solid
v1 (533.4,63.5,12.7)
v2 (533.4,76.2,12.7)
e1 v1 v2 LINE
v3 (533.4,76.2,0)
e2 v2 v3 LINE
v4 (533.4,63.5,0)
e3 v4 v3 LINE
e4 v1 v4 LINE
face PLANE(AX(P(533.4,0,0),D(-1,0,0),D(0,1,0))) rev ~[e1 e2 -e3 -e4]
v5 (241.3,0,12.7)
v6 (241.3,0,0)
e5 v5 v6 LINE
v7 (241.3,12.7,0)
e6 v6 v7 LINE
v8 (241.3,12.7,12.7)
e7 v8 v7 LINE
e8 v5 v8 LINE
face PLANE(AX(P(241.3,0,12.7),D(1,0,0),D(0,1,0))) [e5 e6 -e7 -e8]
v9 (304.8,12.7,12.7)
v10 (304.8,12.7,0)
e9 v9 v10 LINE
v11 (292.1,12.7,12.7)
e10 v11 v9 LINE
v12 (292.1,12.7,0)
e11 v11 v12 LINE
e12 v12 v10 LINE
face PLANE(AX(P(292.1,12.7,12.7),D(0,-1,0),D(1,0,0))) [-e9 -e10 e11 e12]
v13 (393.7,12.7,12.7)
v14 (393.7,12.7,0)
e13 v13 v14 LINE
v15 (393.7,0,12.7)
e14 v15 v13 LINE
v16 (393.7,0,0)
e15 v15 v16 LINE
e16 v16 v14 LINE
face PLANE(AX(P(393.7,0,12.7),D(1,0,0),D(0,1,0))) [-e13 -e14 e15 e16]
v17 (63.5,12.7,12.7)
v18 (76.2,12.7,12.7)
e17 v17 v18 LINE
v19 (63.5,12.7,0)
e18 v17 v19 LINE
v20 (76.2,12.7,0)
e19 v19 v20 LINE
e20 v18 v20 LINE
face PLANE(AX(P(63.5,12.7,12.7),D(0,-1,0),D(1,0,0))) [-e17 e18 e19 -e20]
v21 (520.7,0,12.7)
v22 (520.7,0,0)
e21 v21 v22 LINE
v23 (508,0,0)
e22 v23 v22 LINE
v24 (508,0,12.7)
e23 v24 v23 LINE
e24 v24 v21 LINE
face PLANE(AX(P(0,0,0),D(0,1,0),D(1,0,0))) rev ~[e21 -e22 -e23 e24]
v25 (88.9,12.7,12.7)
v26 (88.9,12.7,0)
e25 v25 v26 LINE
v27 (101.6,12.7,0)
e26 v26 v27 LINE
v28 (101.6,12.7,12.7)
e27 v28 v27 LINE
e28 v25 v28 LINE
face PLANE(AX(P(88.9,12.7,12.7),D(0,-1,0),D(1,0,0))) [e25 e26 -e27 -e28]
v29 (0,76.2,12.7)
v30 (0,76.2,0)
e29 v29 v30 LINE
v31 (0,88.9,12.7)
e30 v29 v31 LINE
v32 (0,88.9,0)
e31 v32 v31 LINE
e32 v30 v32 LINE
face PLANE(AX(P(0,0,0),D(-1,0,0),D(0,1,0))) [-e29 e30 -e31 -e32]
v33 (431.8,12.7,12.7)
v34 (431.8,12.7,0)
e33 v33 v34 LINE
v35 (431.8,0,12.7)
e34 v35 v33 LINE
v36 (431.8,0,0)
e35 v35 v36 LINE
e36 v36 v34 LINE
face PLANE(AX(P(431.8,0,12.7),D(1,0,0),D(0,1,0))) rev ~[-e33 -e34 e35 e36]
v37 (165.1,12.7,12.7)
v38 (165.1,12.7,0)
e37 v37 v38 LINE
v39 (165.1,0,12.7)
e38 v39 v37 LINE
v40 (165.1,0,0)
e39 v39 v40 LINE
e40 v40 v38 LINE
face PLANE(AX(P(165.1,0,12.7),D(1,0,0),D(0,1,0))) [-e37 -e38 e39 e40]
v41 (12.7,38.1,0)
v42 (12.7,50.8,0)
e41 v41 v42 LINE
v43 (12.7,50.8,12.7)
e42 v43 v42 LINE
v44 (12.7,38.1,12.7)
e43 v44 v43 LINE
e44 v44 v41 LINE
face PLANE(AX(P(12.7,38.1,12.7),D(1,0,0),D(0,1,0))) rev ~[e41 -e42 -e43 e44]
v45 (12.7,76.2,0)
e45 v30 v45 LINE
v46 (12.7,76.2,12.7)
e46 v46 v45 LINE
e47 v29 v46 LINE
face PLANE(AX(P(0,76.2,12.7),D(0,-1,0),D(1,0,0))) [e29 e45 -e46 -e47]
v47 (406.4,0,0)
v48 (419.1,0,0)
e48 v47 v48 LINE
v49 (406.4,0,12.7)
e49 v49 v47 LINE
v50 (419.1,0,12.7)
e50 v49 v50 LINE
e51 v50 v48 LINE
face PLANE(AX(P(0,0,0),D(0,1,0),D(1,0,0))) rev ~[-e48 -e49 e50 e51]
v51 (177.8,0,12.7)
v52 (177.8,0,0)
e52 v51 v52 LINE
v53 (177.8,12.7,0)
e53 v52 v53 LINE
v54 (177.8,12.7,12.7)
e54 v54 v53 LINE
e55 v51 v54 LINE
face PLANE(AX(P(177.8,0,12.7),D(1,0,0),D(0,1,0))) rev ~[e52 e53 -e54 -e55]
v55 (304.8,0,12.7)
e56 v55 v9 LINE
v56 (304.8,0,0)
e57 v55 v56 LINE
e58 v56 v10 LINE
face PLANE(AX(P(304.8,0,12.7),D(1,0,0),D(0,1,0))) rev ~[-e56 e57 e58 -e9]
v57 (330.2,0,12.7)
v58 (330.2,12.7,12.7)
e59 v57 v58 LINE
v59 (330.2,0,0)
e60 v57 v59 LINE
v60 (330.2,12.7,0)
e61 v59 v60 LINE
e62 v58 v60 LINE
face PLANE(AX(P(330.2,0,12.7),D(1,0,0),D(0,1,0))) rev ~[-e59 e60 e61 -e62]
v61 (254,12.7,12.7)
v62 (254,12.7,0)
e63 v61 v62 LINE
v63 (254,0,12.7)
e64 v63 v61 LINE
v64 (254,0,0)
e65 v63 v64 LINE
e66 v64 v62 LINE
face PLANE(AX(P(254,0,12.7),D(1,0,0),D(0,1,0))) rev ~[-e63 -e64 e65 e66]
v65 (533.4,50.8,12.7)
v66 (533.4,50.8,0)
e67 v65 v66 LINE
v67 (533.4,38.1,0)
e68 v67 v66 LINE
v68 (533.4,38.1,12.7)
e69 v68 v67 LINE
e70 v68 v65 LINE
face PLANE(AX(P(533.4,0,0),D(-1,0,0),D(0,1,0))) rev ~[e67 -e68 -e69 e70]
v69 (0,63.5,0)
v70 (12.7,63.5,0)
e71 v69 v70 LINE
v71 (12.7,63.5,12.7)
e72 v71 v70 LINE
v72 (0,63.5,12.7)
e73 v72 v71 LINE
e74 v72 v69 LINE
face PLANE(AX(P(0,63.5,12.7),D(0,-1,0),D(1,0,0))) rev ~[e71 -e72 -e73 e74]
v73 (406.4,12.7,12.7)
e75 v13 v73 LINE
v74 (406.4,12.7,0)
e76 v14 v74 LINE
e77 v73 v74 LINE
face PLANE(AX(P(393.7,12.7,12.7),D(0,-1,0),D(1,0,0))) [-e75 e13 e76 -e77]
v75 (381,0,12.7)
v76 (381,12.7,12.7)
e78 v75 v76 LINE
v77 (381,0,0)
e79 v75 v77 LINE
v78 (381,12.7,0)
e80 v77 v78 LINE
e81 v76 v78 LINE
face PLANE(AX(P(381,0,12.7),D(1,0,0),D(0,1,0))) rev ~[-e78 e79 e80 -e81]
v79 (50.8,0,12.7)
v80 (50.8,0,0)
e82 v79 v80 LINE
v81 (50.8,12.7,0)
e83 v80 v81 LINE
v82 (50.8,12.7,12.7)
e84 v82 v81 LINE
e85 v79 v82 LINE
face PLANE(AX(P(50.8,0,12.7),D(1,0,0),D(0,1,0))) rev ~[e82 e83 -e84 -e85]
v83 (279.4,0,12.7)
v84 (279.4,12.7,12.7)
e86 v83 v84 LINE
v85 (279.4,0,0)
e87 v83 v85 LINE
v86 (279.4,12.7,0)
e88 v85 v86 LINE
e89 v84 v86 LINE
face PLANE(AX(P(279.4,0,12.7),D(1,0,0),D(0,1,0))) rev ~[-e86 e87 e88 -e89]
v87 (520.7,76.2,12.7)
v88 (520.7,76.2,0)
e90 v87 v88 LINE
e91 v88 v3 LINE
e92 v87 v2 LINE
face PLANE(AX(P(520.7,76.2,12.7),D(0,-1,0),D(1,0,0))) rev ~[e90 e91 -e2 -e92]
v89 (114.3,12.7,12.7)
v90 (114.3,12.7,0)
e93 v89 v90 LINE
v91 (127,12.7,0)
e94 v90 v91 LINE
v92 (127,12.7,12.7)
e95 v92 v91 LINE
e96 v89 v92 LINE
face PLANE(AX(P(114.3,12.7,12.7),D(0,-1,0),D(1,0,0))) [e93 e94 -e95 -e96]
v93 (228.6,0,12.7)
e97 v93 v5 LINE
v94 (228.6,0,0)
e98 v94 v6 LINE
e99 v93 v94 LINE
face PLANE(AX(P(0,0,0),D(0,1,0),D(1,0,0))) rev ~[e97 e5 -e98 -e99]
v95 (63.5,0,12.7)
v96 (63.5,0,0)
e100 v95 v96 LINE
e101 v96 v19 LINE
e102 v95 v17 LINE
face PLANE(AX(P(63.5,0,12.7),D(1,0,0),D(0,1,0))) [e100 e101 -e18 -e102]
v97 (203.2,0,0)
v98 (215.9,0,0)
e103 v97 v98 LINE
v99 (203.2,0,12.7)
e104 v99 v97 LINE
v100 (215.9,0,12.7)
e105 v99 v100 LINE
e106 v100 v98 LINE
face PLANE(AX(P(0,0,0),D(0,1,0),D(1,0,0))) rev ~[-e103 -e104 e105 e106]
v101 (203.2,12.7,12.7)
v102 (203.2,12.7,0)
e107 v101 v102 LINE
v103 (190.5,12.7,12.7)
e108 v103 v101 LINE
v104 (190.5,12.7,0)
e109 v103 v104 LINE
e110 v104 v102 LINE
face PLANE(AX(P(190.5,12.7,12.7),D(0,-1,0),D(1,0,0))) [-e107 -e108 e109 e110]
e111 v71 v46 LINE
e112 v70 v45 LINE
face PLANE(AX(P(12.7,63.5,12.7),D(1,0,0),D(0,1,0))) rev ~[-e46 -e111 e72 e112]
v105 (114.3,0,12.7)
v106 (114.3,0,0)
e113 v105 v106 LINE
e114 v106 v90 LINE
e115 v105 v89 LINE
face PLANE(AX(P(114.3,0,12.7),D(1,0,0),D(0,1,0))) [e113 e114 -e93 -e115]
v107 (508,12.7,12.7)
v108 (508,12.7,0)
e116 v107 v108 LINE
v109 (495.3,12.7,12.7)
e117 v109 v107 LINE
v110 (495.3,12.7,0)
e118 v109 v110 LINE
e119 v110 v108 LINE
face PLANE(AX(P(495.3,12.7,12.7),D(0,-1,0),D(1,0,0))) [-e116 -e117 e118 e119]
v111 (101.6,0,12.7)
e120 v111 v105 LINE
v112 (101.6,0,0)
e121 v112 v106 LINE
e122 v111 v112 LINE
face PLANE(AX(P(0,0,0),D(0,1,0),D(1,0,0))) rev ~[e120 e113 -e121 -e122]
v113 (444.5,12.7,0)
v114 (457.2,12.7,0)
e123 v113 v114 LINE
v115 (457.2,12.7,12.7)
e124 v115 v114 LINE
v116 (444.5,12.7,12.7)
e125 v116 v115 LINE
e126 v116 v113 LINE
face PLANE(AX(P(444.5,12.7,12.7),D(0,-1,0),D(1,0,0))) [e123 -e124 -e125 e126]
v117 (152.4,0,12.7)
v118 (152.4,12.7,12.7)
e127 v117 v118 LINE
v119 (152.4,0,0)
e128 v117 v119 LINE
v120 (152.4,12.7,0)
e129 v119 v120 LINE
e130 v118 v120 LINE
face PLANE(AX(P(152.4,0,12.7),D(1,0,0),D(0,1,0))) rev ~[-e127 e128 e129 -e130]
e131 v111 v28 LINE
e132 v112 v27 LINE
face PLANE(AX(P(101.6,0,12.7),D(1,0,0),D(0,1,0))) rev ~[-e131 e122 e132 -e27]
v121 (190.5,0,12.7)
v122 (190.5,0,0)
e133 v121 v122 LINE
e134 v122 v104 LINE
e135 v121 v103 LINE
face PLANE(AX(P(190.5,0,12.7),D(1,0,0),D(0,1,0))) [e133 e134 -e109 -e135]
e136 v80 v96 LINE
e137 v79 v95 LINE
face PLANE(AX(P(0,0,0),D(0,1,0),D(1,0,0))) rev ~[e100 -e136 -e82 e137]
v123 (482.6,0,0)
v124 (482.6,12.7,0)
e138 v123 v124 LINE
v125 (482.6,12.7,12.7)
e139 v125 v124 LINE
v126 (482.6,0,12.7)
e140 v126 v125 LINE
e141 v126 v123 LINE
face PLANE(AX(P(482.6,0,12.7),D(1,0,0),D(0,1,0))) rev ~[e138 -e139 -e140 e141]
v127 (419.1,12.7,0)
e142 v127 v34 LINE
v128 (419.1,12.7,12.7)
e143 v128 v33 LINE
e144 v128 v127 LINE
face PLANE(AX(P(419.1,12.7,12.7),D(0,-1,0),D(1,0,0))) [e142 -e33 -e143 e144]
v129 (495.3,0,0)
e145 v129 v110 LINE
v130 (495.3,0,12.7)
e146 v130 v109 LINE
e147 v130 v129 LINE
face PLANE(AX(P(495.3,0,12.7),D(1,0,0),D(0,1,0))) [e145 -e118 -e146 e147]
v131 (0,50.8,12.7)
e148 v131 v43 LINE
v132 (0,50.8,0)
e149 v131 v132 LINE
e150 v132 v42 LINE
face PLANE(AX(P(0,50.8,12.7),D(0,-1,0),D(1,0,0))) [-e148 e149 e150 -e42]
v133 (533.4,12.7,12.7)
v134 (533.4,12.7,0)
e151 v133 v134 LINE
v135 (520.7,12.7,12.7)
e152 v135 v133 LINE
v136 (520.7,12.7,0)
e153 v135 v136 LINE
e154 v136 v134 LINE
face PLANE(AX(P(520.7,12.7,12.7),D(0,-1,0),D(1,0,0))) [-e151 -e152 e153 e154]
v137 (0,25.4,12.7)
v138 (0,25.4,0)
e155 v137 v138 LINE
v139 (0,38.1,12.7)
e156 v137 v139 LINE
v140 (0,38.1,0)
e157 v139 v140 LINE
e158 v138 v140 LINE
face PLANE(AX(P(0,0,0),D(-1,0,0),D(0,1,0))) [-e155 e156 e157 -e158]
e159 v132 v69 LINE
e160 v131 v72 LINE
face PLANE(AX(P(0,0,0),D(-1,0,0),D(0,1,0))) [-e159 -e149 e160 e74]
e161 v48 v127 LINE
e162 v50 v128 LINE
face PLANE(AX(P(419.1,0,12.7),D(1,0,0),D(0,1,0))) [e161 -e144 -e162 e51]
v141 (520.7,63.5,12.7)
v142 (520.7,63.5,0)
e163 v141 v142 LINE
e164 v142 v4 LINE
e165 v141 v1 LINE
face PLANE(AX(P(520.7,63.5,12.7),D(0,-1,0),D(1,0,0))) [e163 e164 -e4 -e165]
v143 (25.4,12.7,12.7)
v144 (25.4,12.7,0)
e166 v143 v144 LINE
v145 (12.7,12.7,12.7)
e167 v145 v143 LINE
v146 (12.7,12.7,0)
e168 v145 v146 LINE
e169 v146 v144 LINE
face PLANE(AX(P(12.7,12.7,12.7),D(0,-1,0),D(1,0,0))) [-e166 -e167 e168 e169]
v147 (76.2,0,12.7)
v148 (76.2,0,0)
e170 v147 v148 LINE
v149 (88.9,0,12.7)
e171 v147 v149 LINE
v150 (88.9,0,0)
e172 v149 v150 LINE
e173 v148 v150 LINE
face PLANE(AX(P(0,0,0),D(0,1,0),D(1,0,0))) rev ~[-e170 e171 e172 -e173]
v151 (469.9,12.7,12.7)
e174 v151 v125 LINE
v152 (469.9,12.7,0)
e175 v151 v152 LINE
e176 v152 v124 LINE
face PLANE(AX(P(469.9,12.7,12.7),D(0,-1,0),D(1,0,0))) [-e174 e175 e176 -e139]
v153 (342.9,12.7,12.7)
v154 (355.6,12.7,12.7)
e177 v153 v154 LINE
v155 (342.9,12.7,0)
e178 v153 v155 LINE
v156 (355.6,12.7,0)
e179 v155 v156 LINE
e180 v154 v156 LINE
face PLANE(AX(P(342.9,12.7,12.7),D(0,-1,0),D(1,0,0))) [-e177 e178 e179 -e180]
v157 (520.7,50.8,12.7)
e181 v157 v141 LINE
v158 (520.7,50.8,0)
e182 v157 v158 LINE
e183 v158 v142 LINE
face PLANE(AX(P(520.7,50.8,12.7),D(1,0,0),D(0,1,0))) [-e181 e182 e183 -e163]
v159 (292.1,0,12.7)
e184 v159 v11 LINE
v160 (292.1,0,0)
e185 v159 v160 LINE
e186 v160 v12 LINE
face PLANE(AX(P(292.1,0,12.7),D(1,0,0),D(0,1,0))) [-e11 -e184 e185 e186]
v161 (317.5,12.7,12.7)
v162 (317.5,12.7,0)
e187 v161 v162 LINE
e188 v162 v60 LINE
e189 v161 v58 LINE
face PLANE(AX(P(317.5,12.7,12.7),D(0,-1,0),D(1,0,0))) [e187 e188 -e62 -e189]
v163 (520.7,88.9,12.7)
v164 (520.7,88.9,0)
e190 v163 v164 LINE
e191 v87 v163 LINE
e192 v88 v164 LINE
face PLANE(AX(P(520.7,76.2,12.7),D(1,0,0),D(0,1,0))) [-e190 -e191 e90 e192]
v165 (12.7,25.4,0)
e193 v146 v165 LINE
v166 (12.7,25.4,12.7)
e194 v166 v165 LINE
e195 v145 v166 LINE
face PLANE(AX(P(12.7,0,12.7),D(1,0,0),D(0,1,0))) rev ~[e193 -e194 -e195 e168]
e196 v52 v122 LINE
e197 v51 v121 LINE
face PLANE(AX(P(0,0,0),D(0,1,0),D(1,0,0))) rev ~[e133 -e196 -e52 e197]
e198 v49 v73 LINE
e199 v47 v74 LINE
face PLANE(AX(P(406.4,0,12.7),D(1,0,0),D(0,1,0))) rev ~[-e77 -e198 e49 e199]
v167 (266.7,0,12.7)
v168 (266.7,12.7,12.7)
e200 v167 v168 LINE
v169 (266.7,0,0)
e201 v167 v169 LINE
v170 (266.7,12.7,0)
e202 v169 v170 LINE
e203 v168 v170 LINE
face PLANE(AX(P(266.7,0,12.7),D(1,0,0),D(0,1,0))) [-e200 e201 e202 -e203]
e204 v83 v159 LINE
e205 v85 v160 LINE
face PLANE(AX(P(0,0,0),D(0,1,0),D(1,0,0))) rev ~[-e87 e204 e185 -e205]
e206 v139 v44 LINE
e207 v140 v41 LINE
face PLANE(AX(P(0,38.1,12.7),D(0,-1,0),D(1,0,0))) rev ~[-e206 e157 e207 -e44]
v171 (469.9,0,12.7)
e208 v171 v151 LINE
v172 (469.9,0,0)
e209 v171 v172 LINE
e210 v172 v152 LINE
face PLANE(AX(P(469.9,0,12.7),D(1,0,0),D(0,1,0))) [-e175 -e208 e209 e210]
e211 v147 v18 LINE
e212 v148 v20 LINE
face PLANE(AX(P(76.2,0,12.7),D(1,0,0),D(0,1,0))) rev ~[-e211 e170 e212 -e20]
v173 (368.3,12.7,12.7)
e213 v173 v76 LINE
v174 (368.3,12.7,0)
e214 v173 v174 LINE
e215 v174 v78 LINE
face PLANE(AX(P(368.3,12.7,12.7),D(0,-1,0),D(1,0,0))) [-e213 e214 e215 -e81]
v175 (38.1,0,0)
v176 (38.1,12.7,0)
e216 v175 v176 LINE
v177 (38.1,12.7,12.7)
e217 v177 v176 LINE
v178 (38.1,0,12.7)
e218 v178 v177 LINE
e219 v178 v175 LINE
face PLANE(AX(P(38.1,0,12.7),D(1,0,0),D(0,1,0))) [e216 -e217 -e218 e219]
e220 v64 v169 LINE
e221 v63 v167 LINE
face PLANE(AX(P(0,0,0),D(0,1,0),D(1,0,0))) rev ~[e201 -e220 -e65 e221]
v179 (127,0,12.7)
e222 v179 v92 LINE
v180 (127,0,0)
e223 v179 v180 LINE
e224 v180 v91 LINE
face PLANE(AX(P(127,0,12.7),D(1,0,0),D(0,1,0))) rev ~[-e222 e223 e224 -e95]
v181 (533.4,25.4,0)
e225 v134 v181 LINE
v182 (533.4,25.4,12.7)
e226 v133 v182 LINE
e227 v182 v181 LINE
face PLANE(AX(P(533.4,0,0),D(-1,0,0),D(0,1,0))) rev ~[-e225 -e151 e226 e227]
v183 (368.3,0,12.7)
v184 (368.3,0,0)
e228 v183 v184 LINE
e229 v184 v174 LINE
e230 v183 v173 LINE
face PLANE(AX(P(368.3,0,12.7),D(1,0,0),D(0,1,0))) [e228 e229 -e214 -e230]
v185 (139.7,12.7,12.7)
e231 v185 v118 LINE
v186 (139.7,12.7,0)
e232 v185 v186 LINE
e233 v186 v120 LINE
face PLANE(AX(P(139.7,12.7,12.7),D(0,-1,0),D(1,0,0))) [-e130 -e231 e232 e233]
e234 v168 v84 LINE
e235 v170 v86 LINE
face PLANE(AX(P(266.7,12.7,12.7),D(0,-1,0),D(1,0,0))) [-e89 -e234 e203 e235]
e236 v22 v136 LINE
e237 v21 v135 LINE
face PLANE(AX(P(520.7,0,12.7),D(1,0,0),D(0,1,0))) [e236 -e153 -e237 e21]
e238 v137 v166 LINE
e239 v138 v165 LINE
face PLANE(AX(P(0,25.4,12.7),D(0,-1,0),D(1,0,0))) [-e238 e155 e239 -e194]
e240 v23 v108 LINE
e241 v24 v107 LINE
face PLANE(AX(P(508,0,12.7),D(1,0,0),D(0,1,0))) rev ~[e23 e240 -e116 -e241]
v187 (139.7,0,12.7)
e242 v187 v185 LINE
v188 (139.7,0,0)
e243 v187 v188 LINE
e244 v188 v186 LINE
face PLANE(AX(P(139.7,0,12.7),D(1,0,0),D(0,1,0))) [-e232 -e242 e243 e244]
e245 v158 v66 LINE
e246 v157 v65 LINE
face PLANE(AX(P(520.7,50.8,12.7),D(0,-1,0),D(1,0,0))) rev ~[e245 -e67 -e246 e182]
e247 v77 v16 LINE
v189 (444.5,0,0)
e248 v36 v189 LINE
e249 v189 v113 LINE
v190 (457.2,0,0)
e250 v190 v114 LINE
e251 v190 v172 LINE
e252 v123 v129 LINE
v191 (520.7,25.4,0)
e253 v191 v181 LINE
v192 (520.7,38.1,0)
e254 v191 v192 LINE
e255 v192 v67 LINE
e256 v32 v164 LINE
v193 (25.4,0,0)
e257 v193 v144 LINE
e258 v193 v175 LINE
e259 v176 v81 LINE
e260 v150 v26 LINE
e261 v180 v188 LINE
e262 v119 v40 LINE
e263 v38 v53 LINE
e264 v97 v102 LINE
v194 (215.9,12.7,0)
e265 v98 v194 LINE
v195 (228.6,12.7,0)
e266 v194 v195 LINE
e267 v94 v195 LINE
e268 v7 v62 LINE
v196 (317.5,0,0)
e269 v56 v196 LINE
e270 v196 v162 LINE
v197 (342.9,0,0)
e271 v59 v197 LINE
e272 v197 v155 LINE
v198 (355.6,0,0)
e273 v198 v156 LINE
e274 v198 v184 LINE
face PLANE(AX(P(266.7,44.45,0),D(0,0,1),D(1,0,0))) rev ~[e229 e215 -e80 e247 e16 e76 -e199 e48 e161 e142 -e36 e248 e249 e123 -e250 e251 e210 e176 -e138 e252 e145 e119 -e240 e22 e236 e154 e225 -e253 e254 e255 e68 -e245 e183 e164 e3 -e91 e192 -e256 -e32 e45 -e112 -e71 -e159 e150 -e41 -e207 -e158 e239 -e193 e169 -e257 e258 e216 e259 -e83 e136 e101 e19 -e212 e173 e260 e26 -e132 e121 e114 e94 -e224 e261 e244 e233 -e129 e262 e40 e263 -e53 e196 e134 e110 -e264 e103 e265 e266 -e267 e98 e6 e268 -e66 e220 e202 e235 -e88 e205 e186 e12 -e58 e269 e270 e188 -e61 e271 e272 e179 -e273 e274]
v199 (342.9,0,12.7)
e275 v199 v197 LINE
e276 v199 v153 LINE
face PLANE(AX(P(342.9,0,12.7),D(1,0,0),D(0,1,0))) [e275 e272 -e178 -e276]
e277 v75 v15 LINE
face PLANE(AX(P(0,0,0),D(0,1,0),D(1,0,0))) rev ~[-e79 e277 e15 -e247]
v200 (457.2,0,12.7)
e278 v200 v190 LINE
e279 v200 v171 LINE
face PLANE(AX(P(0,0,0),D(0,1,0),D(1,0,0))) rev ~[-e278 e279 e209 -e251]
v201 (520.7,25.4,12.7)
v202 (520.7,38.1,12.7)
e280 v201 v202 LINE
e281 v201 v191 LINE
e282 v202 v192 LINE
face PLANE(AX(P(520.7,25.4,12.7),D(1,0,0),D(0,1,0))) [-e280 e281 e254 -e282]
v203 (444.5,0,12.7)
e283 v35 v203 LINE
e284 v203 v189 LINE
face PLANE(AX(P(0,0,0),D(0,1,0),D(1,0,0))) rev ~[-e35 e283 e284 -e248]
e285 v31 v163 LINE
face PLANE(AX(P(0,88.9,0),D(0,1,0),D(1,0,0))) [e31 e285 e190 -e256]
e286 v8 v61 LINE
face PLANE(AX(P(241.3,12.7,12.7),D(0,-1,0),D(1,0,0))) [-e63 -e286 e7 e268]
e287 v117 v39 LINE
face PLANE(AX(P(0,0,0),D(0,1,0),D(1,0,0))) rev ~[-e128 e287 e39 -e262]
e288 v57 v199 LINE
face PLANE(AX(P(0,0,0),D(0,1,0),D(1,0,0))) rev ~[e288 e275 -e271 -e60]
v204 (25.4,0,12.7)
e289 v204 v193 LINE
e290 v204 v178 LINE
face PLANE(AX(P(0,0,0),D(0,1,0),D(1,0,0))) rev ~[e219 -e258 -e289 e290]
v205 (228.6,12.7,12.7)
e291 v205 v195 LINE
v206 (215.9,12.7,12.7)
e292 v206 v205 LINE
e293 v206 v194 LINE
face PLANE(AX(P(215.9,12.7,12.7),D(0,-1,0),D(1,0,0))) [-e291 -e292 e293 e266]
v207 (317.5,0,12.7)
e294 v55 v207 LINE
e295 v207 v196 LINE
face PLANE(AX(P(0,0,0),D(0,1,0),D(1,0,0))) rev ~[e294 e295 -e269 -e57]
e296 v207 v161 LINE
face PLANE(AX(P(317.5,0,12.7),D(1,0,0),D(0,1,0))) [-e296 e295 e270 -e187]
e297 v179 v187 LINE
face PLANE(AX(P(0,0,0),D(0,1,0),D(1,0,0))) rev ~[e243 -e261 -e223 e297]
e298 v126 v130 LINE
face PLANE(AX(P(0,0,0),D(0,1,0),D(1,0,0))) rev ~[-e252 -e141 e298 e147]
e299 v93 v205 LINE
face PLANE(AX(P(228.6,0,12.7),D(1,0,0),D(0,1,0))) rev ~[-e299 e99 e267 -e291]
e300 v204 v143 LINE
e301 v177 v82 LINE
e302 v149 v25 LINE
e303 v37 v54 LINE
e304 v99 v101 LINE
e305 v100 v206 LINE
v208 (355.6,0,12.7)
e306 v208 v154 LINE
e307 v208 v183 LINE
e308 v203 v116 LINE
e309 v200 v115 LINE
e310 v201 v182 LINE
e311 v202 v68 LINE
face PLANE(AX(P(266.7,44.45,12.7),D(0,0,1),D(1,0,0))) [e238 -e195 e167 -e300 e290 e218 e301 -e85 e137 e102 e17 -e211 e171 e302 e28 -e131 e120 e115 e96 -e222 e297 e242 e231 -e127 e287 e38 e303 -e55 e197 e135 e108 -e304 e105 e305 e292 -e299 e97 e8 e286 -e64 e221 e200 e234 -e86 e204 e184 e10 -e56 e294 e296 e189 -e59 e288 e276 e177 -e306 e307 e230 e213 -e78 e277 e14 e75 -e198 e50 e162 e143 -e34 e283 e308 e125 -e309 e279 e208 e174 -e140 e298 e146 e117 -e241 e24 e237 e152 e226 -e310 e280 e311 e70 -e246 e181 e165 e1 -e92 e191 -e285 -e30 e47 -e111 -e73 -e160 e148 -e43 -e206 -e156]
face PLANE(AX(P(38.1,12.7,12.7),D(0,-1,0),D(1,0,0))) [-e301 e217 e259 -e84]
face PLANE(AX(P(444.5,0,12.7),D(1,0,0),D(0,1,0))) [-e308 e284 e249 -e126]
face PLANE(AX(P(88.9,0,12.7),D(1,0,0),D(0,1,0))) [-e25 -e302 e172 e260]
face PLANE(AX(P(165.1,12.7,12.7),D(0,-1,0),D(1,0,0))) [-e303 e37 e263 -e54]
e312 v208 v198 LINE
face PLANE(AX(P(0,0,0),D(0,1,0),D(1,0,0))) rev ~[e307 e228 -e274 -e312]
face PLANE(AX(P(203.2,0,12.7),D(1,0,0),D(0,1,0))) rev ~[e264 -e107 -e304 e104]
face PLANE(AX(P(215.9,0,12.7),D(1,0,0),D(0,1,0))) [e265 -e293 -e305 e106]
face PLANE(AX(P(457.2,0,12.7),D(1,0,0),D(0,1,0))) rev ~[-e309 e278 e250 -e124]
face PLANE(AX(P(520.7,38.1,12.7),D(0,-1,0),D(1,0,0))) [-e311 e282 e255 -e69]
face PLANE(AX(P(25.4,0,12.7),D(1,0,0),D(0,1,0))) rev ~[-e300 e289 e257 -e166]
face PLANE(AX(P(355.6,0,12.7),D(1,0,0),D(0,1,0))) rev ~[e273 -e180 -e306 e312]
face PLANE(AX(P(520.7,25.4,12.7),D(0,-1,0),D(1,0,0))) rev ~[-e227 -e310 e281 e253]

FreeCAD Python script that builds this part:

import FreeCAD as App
import Part
import Sketcher
Q = App.Units.Quantity

doc = App.newDocument("Part")
body = doc.addObject("PartDesign::Body", "Body")

sketch1 = body.newObject("Sketcher::SketchObject", "Sketch")
sketch1.AttachmentSupport = (doc.getObject("XY_Plane"), [""])
sketch1.MapMode = "FlatFace"
sketch1.addGeometry([
    Part.LineSegment(App.Vector(0, 89, 0), App.Vector(0, 0, 0)),
    Part.LineSegment(App.Vector(0, 0, 0), App.Vector(533, 0, 0)),
    Part.LineSegment(App.Vector(533, 0, 0), App.Vector(533, 89, 0)),
    Part.LineSegment(App.Vector(533, 89, 0), App.Vector(0, 89, 0)),
], False)
sketch1.addConstraint([
    Sketcher.Constraint("Coincident", 0, 2, 1, 1),
    Sketcher.Constraint("Coincident", 1, 2, 2, 1),
    Sketcher.Constraint("Coincident", 2, 2, 3, 1),
    Sketcher.Constraint("Coincident", 3, 2, 0, 1),
    Sketcher.Constraint("Vertical", 0),
    Sketcher.Constraint("Horizontal", 1),
    Sketcher.Constraint("Vertical", 2),
    Sketcher.Constraint("Horizontal", 3),
    Sketcher.Constraint("Coincident", 0, 2, -1, 1),
    Sketcher.Constraint("DistanceX", 1, 1, 1, 2, Q("21 in")),
    Sketcher.Constraint("DistanceY", 0, 2, 0, 1, Q("3.5 in")),
])
pad1 = body.newObject("PartDesign::Pad", "Pad")
pad1.Profile = sketch1
pad1.Length = Q("0.5 in")

sketch2 = body.newObject("Sketcher::SketchObject", "Sketch001")
sketch2.AttachmentSupport = (doc.getObject("XY_Plane"), [""])
sketch2.MapMode = "FlatFace"
sketch2.AttachmentOffset = App.Placement(App.Vector(0, 0, 0.5 * 25.4), App.Rotation())
sketch2.addGeometry([
    Part.LineSegment(App.Vector(521, 13, 0), App.Vector(521, 0, 0)),
    Part.LineSegment(App.Vector(521, 0, 0), App.Vector(533, 0, 0)),
    Part.LineSegment(App.Vector(533, 0, 0), App.Vector(533, 13, 0)),
    Part.LineSegment(App.Vector(533, 13, 0), App.Vector(521, 13, 0)),
    Part.LineSegment(App.Vector(521, 38, 0), App.Vector(521, 25, 0)),
    Part.LineSegment(App.Vector(521, 25, 0), App.Vector(533, 25, 0)),
    Part.LineSegment(App.Vector(533, 25, 0), App.Vector(533, 38, 0)),
    Part.LineSegment(App.Vector(533, 38, 0), App.Vector(521, 38, 0)),
    Part.LineSegment(App.Vector(521, 64, 0), App.Vector(521, 51, 0)),
    Part.LineSegment(App.Vector(521, 51, 0), App.Vector(533, 51, 0)),
    Part.LineSegment(App.Vector(533, 51, 0), App.Vector(533, 64, 0)),
    Part.LineSegment(App.Vector(533, 64, 0), App.Vector(521, 64, 0)),
    Part.LineSegment(App.Vector(521, 89, 0), App.Vector(521, 76, 0)),
    Part.LineSegment(App.Vector(521, 76, 0), App.Vector(533, 76, 0)),
    Part.LineSegment(App.Vector(533, 76, 0), App.Vector(533, 89, 0)),
    Part.LineSegment(App.Vector(533, 89, 0), App.Vector(521, 89, 0)),
], False)
sketch2.addConstraint([
    Sketcher.Constraint("Coincident", 0, 2, 1, 1),
    Sketcher.Constraint("Coincident", 1, 2, 2, 1),
    Sketcher.Constraint("Coincident", 2, 2, 3, 1),
    Sketcher.Constraint("Coincident", 3, 2, 0, 1),
    Sketcher.Constraint("Coincident", 4, 2, 5, 1),
    Sketcher.Constraint("Coincident", 5, 2, 6, 1),
    Sketcher.Constraint("Coincident", 6, 2, 7, 1),
    Sketcher.Constraint("Coincident", 7, 2, 4, 1),
    Sketcher.Constraint("Coincident", 8, 2, 9, 1),
    Sketcher.Constraint("Coincident", 9, 2, 10, 1),
    Sketcher.Constraint("Coincident", 10, 2, 11, 1),
    Sketcher.Constraint("Coincident", 11, 2, 8, 1),
    Sketcher.Constraint("Coincident", 12, 2, 13, 1),
    Sketcher.Constraint("Coincident", 13, 2, 14, 1),
    Sketcher.Constraint("Coincident", 14, 2, 15, 1),
    Sketcher.Constraint("Coincident", 15, 2, 12, 1),
    Sketcher.Constraint("Vertical", 0),
    Sketcher.Constraint("Horizontal", 1),
    Sketcher.Constraint("Vertical", 2),
    Sketcher.Constraint("Horizontal", 3),
    Sketcher.Constraint("Vertical", 4),
    Sketcher.Constraint("Horizontal", 5),
    Sketcher.Constraint("Vertical", 6),
    Sketcher.Constraint("Horizontal", 7),
    Sketcher.Constraint("Vertical", 8),
    Sketcher.Constraint("Horizontal", 9),
    Sketcher.Constraint("Vertical", 10),
    Sketcher.Constraint("Horizontal", 11),
    Sketcher.Constraint("Vertical", 12),
    Sketcher.Constraint("Horizontal", 13),
    Sketcher.Constraint("Vertical", 14),
    Sketcher.Constraint("Horizontal", 15),
    Sketcher.Constraint("PointOnObject", 0, 2, -1),
    Sketcher.Constraint("Vertical", 3, 2, 4, 2),
    Sketcher.Constraint("Vertical", 2, 2, 5, 2),
    Sketcher.Constraint("Vertical", 7, 2, 8, 2),
    Sketcher.Constraint("Vertical", 6, 2, 9, 2),
    Sketcher.Constraint("Vertical", 11, 2, 12, 2),
    Sketcher.Constraint("Vertical", 10, 2, 13, 2),
    Sketcher.Constraint("Equal", 15, 0),
    Sketcher.Constraint("Equal", 2, 4),
    Sketcher.Constraint("Equal", 6, 8),
    Sketcher.Constraint("Equal", 10, 12),
    Sketcher.Constraint("DistanceX", 1, 1, 1, 2, Q("0.5 in")),
    Sketcher.Constraint("DistanceX", -1, 1, 1, 2, Q("21 in")),
    Sketcher.Constraint("DistanceY", -1, 1, 4, 2, Q("1 in")),
    Sketcher.Constraint("DistanceY", -1, 1, 8, 2, Q("2 in")),
    Sketcher.Constraint("DistanceY", -1, 1, 12, 2, Q("3 in")),
])
pocket1 = body.newObject("PartDesign::Pocket", "Pocket")
pocket1.Profile = sketch2
pocket1.Length = Q("1 in")

sketch3 = body.newObject("Sketcher::SketchObject", "Sketch002")
sketch3.AttachmentSupport = (doc.getObject("XY_Plane"), [""])
sketch3.MapMode = "FlatFace"
sketch3.AttachmentOffset = App.Placement(App.Vector(0, 0, 0.5 * 25.4), App.Rotation())
sketch3.addGeometry([
    Part.LineSegment(App.Vector(0, 51, 0), App.Vector(0, 38, 0)),
    Part.LineSegment(App.Vector(0, 38, 0), App.Vector(13, 38, 0)),
    Part.LineSegment(App.Vector(13, 38, 0), App.Vector(13, 51, 0)),
    Part.LineSegment(App.Vector(13, 51, 0), App.Vector(0, 51, 0)),
    Part.LineSegment(App.Vector(0, 76, 0), App.Vector(0, 64, 0)),
    Part.LineSegment(App.Vector(0, 64, 0), App.Vector(13, 64, 0)),
    Part.LineSegment(App.Vector(13, 64, 0), App.Vector(13, 76, 0)),
    Part.LineSegment(App.Vector(13, 76, 0), App.Vector(0, 76, 0)),
    Part.LineSegment(App.Vector(0, 25, 0), App.Vector(0, 0, 0)),
    Part.LineSegment(App.Vector(0, 0, 0), App.Vector(13, 0, 0)),
    Part.LineSegment(App.Vector(13, 0, 0), App.Vector(13, 25, 0)),
    Part.LineSegment(App.Vector(13, 25, 0), App.Vector(0, 25, 0)),
], False)
sketch3.addConstraint([
    Sketcher.Constraint("Coincident", 0, 2, 1, 1),
    Sketcher.Constraint("Coincident", 1, 2, 2, 1),
    Sketcher.Constraint("Coincident", 2, 2, 3, 1),
    Sketcher.Constraint("Coincident", 3, 2, 0, 1),
    Sketcher.Constraint("Coincident", 4, 2, 5, 1),
    Sketcher.Constraint("Coincident", 5, 2, 6, 1),
    Sketcher.Constraint("Coincident", 6, 2, 7, 1),
    Sketcher.Constraint("Coincident", 7, 2, 4, 1),
    Sketcher.Constraint("Coincident", 8, 2, 9, 1),
    Sketcher.Constraint("Coincident", 9, 2, 10, 1),
    Sketcher.Constraint("Coincident", 10, 2, 11, 1),
    Sketcher.Constraint("Coincident", 11, 2, 8, 1),
    Sketcher.Constraint("Vertical", 0),
    Sketcher.Constraint("Horizontal", 1),
    Sketcher.Constraint("Vertical", 2),
    Sketcher.Constraint("Horizontal", 3),
    Sketcher.Constraint("Vertical", 4),
    Sketcher.Constraint("Horizontal", 5),
    Sketcher.Constraint("Vertical", 6),
    Sketcher.Constraint("Horizontal", 7),
    Sketcher.Constraint("Vertical", 8),
    Sketcher.Constraint("Horizontal", 9),
    Sketcher.Constraint("Vertical", 10),
    Sketcher.Constraint("Horizontal", 11),
    Sketcher.Constraint("Coincident", 8, 2, -1, 1),
    Sketcher.Constraint("PointOnObject", 0, 2, -2),
    Sketcher.Constraint("PointOnObject", 4, 2, -2),
    Sketcher.Constraint("Vertical", 2, 2, 5, 2),
    Sketcher.Constraint("Vertical", 6, 2, 9, 2),
    Sketcher.Constraint("Equal", 11, 0),
    Sketcher.Constraint("Equal", 2, 4),
    Sketcher.Constraint("DistanceY", 8, 2, 8, 1, Q("1 in")),
    Sketcher.Constraint("DistanceX", 1, 1, 1, 2, Q("0.5 in")),
    Sketcher.Constraint("DistanceY", -1, 1, 2, 2, Q("2 in")),
    Sketcher.Constraint("DistanceY", -1, 1, 6, 2, Q("3 in")),
])
pocket2 = body.newObject("PartDesign::Pocket", "Pocket001")
pocket2.Profile = sketch3
pocket2.Length = Q("1 in")

sketch4 = body.newObject("Sketcher::SketchObject", "Sketch003")
sketch4.AttachmentSupport = (doc.getObject("XY_Plane"), [""])
sketch4.MapMode = "FlatFace"
sketch4.AttachmentOffset = App.Placement(App.Vector(0, 0, 0.5 * 25.4), App.Rotation())
sketch4.addGeometry([
    Part.LineSegment(App.Vector(13, 13, 0), App.Vector(13, 0, 0)),
    Part.LineSegment(App.Vector(13, 0, 0), App.Vector(25, 0, 0)),
    Part.LineSegment(App.Vector(25, 0, 0), App.Vector(25, 13, 0)),
    Part.LineSegment(App.Vector(25, 13, 0), App.Vector(13, 13, 0)),
    Part.LineSegment(App.Vector(38, 13, 0), App.Vector(38, 0, 0)),
    Part.LineSegment(App.Vector(38, 0, 0), App.Vector(51, 0, 0)),
    Part.LineSegment(App.Vector(51, 0, 0), App.Vector(51, 13, 0)),
    Part.LineSegment(App.Vector(51, 13, 0), App.Vector(38, 13, 0)),
    Part.LineSegment(App.Vector(64, 13, 0), App.Vector(64, 0, 0)),
    Part.LineSegment(App.Vector(64, 0, 0), App.Vector(76, 0, 0)),
    Part.LineSegment(App.Vector(76, 0, 0), App.Vector(76, 13, 0)),
    Part.LineSegment(App.Vector(76, 13, 0), App.Vector(64, 13, 0)),
    Part.LineSegment(App.Vector(89, 13, 0), App.Vector(89, 0, 0)),
    Part.LineSegment(App.Vector(89, 0, 0), App.Vector(102, 0, 0)),
    Part.LineSegment(App.Vector(102, 0, 0), App.Vector(102, 13, 0)),
    Part.LineSegment(App.Vector(102, 13, 0), App.Vector(89, 13, 0)),
    Part.LineSegment(App.Vector(114, 13, 0), App.Vector(114, 0, 0)),
    Part.LineSegment(App.Vector(114, 0, 0), App.Vector(127, 0, 0)),
    Part.LineSegment(App.Vector(127, 0, 0), App.Vector(127, 13, 0)),
    Part.LineSegment(App.Vector(127, 13, 0), App.Vector(114, 13, 0)),
    Part.LineSegment(App.Vector(140, 13, 0), App.Vector(140, 0, 0)),
    Part.LineSegment(App.Vector(140, 0, 0), App.Vector(152, 0, 0)),
    Part.LineSegment(App.Vector(152, 0, 0), App.Vector(152, 13, 0)),
    Part.LineSegment(App.Vector(152, 13, 0), App.Vector(140, 13, 0)),
    Part.LineSegment(App.Vector(165, 13, 0), App.Vector(165, 0, 0)),
    Part.LineSegment(App.Vector(165, 0, 0), App.Vector(178, 0, 0)),
    Part.LineSegment(App.Vector(178, 0, 0), App.Vector(178, 13, 0)),
    Part.LineSegment(App.Vector(178, 13, 0), App.Vector(165, 13, 0)),
    Part.LineSegment(App.Vector(190, 13, 0), App.Vector(190, 0, 0)),
    Part.LineSegment(App.Vector(190, 0, 0), App.Vector(203, 0, 0)),
    Part.LineSegment(App.Vector(203, 0, 0), App.Vector(203, 13, 0)),
    Part.LineSegment(App.Vector(203, 13, 0), App.Vector(190, 13, 0)),
    Part.LineSegment(App.Vector(216, 13, 0), App.Vector(216, 0, 0)),
    Part.LineSegment(App.Vector(216, 0, 0), App.Vector(229, 0, 0)),
    Part.LineSegment(App.Vector(229, 0, 0), App.Vector(229, 13, 0)),
    Part.LineSegment(App.Vector(229, 13, 0), App.Vector(216, 13, 0)),
    Part.LineSegment(App.Vector(241, 13, 0), App.Vector(241, 0, 0)),
    Part.LineSegment(App.Vector(241, 0, 0), App.Vector(254, 0, 0)),
    Part.LineSegment(App.Vector(254, 0, 0), App.Vector(254, 13, 0)),
    Part.LineSegment(App.Vector(254, 13, 0), App.Vector(241, 13, 0)),
    Part.LineSegment(App.Vector(267, 13, 0), App.Vector(267, 0, 0)),
    Part.LineSegment(App.Vector(267, 0, 0), App.Vector(279, 0, 0)),
    Part.LineSegment(App.Vector(279, 0, 0), App.Vector(279, 13, 0)),
    Part.LineSegment(App.Vector(279, 13, 0), App.Vector(267, 13, 0)),
    Part.LineSegment(App.Vector(292, 13, 0), App.Vector(292, 0, 0)),
    Part.LineSegment(App.Vector(292, 0, 0), App.Vector(305, 0, 0)),
    Part.LineSegment(App.Vector(305, 0, 0), App.Vector(305, 13, 0)),
    Part.LineSegment(App.Vector(305, 13, 0), App.Vector(292, 13, 0)),
    Part.LineSegment(App.Vector(318, 13, 0), App.Vector(318, 0, 0)),
    Part.LineSegment(App.Vector(318, 0, 0), App.Vector(330, 0, 0)),
    Part.LineSegment(App.Vector(330, 0, 0), App.Vector(330, 13, 0)),
    Part.LineSegment(App.Vector(330, 13, 0), App.Vector(318, 13, 0)),
    Part.LineSegment(App.Vector(343, 13, 0), App.Vector(343, 0, 0)),
    Part.LineSegment(App.Vector(343, 0, 0), App.Vector(356, 0, 0)),
    Part.LineSegment(App.Vector(356, 0, 0), App.Vector(356, 13, 0)),
    Part.LineSegment(App.Vector(356, 13, 0), App.Vector(343, 13, 0)),
    Part.LineSegment(App.Vector(368, 13, 0), App.Vector(368, 0, 0)),
    Part.LineSegment(App.Vector(368, 0, 0), App.Vector(381, 0, 0)),
    Part.LineSegment(App.Vector(381, 0, 0), App.Vector(381, 13, 0)),
    Part.LineSegment(App.Vector(381, 13, 0), App.Vector(368, 13, 0)),
    Part.LineSegment(App.Vector(394, 13, 0), App.Vector(394, 0, 0)),
    Part.LineSegment(App.Vector(394, 0, 0), App.Vector(406, 0, 0)),
    Part.LineSegment(App.Vector(406, 0, 0), App.Vector(406, 13, 0)),
    Part.LineSegment(App.Vector(406, 13, 0), App.Vector(394, 13, 0)),
    Part.LineSegment(App.Vector(419, 13, 0), App.Vector(419, 0, 0)),
    Part.LineSegment(App.Vector(419, 0, 0), App.Vector(432, 0, 0)),
    Part.LineSegment(App.Vector(432, 0, 0), App.Vector(432, 13, 0)),
    Part.LineSegment(App.Vector(432, 13, 0), App.Vector(419, 13, 0)),
    Part.LineSegment(App.Vector(444, 13, 0), App.Vector(444, 0, 0)),
    Part.LineSegment(App.Vector(444, 0, 0), App.Vector(457, 0, 0)),
    Part.LineSegment(App.Vector(457, 0, 0), App.Vector(457, 13, 0)),
    Part.LineSegment(App.Vector(457, 13, 0), App.Vector(444, 13, 0)),
    Part.LineSegment(App.Vector(470, 13, 0), App.Vector(470, 0, 0)),
    Part.LineSegment(App.Vector(470, 0, 0), App.Vector(483, 0, 0)),
    Part.LineSegment(App.Vector(483, 0, 0), App.Vector(483, 13, 0)),
    Part.LineSegment(App.Vector(483, 13, 0), App.Vector(470, 13, 0)),
    Part.LineSegment(App.Vector(495, 13, 0), App.Vector(495, 0, 0)),
    Part.LineSegment(App.Vector(495, 0, 0), App.Vector(508, 0, 0)),
    Part.LineSegment(App.Vector(508, 0, 0), App.Vector(508, 13, 0)),
    Part.LineSegment(App.Vector(508, 13, 0), App.Vector(495, 13, 0)),
], False)
sketch4.addConstraint([
    Sketcher.Constraint("Coincident", 0, 2, 1, 1),
    Sketcher.Constraint("Coincident", 1, 2, 2, 1),
    Sketcher.Constraint("Coincident", 2, 2, 3, 1),
    Sketcher.Constraint("Coincident", 3, 2, 0, 1),
    Sketcher.Constraint("Coincident", 4, 2, 5, 1),
    Sketcher.Constraint("Coincident", 5, 2, 6, 1),
    Sketcher.Constraint("Coincident", 6, 2, 7, 1),
    Sketcher.Constraint("Coincident", 7, 2, 4, 1),
    Sketcher.Constraint("Coincident", 8, 2, 9, 1),
    Sketcher.Constraint("Coincident", 9, 2, 10, 1),
    Sketcher.Constraint("Coincident", 10, 2, 11, 1),
    Sketcher.Constraint("Coincident", 11, 2, 8, 1),
    Sketcher.Constraint("Coincident", 12, 2, 13, 1),
    Sketcher.Constraint("Coincident", 13, 2, 14, 1),
    Sketcher.Constraint("Coincident", 14, 2, 15, 1),
    Sketcher.Constraint("Coincident", 15, 2, 12, 1),
    Sketcher.Constraint("Coincident", 16, 2, 17, 1),
    Sketcher.Constraint("Coincident", 17, 2, 18, 1),
    Sketcher.Constraint("Coincident", 18, 2, 19, 1),
    Sketcher.Constraint("Coincident", 19, 2, 16, 1),
    Sketcher.Constraint("Coincident", 20, 2, 21, 1),
    Sketcher.Constraint("Coincident", 21, 2, 22, 1),
    Sketcher.Constraint("Coincident", 22, 2, 23, 1),
    Sketcher.Constraint("Coincident", 23, 2, 20, 1),
    Sketcher.Constraint("Coincident", 24, 2, 25, 1),
    Sketcher.Constraint("Coincident", 25, 2, 26, 1),
    Sketcher.Constraint("Coincident", 26, 2, 27, 1),
    Sketcher.Constraint("Coincident", 27, 2, 24, 1),
    Sketcher.Constraint("Coincident", 28, 2, 29, 1),
    Sketcher.Constraint("Coincident", 29, 2, 30, 1),
    Sketcher.Constraint("Coincident", 30, 2, 31, 1),
    Sketcher.Constraint("Coincident", 31, 2, 28, 1),
    Sketcher.Constraint("Coincident", 32, 2, 33, 1),
    Sketcher.Constraint("Coincident", 33, 2, 34, 1),
    Sketcher.Constraint("Coincident", 34, 2, 35, 1),
    Sketcher.Constraint("Coincident", 35, 2, 32, 1),
    Sketcher.Constraint("Coincident", 36, 2, 37, 1),
    Sketcher.Constraint("Coincident", 37, 2, 38, 1),
    Sketcher.Constraint("Coincident", 38, 2, 39, 1),
    Sketcher.Constraint("Coincident", 39, 2, 36, 1),
    Sketcher.Constraint("Coincident", 40, 2, 41, 1),
    Sketcher.Constraint("Coincident", 41, 2, 42, 1),
    Sketcher.Constraint("Coincident", 42, 2, 43, 1),
    Sketcher.Constraint("Coincident", 43, 2, 40, 1),
    Sketcher.Constraint("Coincident", 44, 2, 45, 1),
    Sketcher.Constraint("Coincident", 45, 2, 46, 1),
    Sketcher.Constraint("Coincident", 46, 2, 47, 1),
    Sketcher.Constraint("Coincident", 47, 2, 44, 1),
    Sketcher.Constraint("Coincident", 48, 2, 49, 1),
    Sketcher.Constraint("Coincident", 49, 2, 50, 1),
    Sketcher.Constraint("Coincident", 50, 2, 51, 1),
    Sketcher.Constraint("Coincident", 51, 2, 48, 1),
    Sketcher.Constraint("Coincident", 52, 2, 53, 1),
    Sketcher.Constraint("Coincident", 53, 2, 54, 1),
    Sketcher.Constraint("Coincident", 54, 2, 55, 1),
    Sketcher.Constraint("Coincident", 55, 2, 52, 1),
    Sketcher.Constraint("Coincident", 56, 2, 57, 1),
    Sketcher.Constraint("Coincident", 57, 2, 58, 1),
    Sketcher.Constraint("Coincident", 58, 2, 59, 1),
    Sketcher.Constraint("Coincident", 59, 2, 56, 1),
    Sketcher.Constraint("Coincident", 60, 2, 61, 1),
    Sketcher.Constraint("Coincident", 61, 2, 62, 1),
    Sketcher.Constraint("Coincident", 62, 2, 63, 1),
    Sketcher.Constraint("Coincident", 63, 2, 60, 1),
    Sketcher.Constraint("Coincident", 64, 2, 65, 1),
    Sketcher.Constraint("Coincident", 65, 2, 66, 1),
    Sketcher.Constraint("Coincident", 66, 2, 67, 1),
    Sketcher.Constraint("Coincident", 67, 2, 64, 1),
    Sketcher.Constraint("Coincident", 68, 2, 69, 1),
    Sketcher.Constraint("Coincident", 69, 2, 70, 1),
    Sketcher.Constraint("Coincident", 70, 2, 71, 1),
    Sketcher.Constraint("Coincident", 71, 2, 68, 1),
    Sketcher.Constraint("Coincident", 72, 2, 73, 1),
    Sketcher.Constraint("Coincident", 73, 2, 74, 1),
    Sketcher.Constraint("Coincident", 74, 2, 75, 1),
    Sketcher.Constraint("Coincident", 75, 2, 72, 1),
    Sketcher.Constraint("Coincident", 76, 2, 77, 1),
    Sketcher.Constraint("Coincident", 77, 2, 78, 1),
    Sketcher.Constraint("Coincident", 78, 2, 79, 1),
    Sketcher.Constraint("Coincident", 79, 2, 76, 1),
    Sketcher.Constraint("Vertical", 0),
    Sketcher.Constraint("Horizontal", 1),
    Sketcher.Constraint("Vertical", 2),
    Sketcher.Constraint("Horizontal", 3),
    Sketcher.Constraint("Vertical", 4),
    Sketcher.Constraint("Horizontal", 5),
    Sketcher.Constraint("Vertical", 6),
    Sketcher.Constraint("Horizontal", 7),
    Sketcher.Constraint("Vertical", 8),
    Sketcher.Constraint("Horizontal", 9),
    Sketcher.Constraint("Vertical", 10),
    Sketcher.Constraint("Horizontal", 11),
    Sketcher.Constraint("Vertical", 12),
    Sketcher.Constraint("Horizontal", 13),
    Sketcher.Constraint("Vertical", 14),
    Sketcher.Constraint("Horizontal", 15),
    Sketcher.Constraint("Vertical", 16),
    Sketcher.Constraint("Horizontal", 17),
    Sketcher.Constraint("Vertical", 18),
    Sketcher.Constraint("Horizontal", 19),
    Sketcher.Constraint("Vertical", 20),
    Sketcher.Constraint("Horizontal", 21),
    Sketcher.Constraint("Vertical", 22),
    Sketcher.Constraint("Horizontal", 23),
    Sketcher.Constraint("Vertical", 24),
    Sketcher.Constraint("Horizontal", 25),
    Sketcher.Constraint("Vertical", 26),
    Sketcher.Constraint("Horizontal", 27),
    Sketcher.Constraint("Vertical", 28),
    Sketcher.Constraint("Horizontal", 29),
    Sketcher.Constraint("Vertical", 30),
    Sketcher.Constraint("Horizontal", 31),
    Sketcher.Constraint("Vertical", 32),
    Sketcher.Constraint("Horizontal", 33),
    Sketcher.Constraint("Vertical", 34),
    Sketcher.Constraint("Horizontal", 35),
    Sketcher.Constraint("Vertical", 36),
    Sketcher.Constraint("Horizontal", 37),
    Sketcher.Constraint("Vertical", 38),
    Sketcher.Constraint("Horizontal", 39),
    Sketcher.Constraint("Vertical", 40),
    Sketcher.Constraint("Horizontal", 41),
    Sketcher.Constraint("Vertical", 42),
    Sketcher.Constraint("Horizontal", 43),
    Sketcher.Constraint("Vertical", 44),
    Sketcher.Constraint("Horizontal", 45),
    Sketcher.Constraint("Vertical", 46),
    Sketcher.Constraint("Horizontal", 47),
    Sketcher.Constraint("Vertical", 48),
    Sketcher.Constraint("Horizontal", 49),
    Sketcher.Constraint("Vertical", 50),
    Sketcher.Constraint("Horizontal", 51),
    Sketcher.Constraint("Vertical", 52),
    Sketcher.Constraint("Horizontal", 53),
    Sketcher.Constraint("Vertical", 54),
    Sketcher.Constraint("Horizontal", 55),
    Sketcher.Constraint("Vertical", 56),
    Sketcher.Constraint("Horizontal", 57),
    Sketcher.Constraint("Vertical", 58),
    Sketcher.Constraint("Horizontal", 59),
    Sketcher.Constraint("Vertical", 60),
    Sketcher.Constraint("Horizontal", 61),
    Sketcher.Constraint("Vertical", 62),
    Sketcher.Constraint("Horizontal", 63),
    Sketcher.Constraint("Vertical", 64),
    Sketcher.Constraint("Horizontal", 65),
    Sketcher.Constraint("Vertical", 66),
    Sketcher.Constraint("Horizontal", 67),
    Sketcher.Constraint("Vertical", 68),
    Sketcher.Constraint("Horizontal", 69),
    Sketcher.Constraint("Vertical", 70),
    Sketcher.Constraint("Horizontal", 71),
    Sketcher.Constraint("Vertical", 72),
    Sketcher.Constraint("Horizontal", 73),
    Sketcher.Constraint("Vertical", 74),
    Sketcher.Constraint("Horizontal", 75),
    Sketcher.Constraint("Vertical", 76),
    Sketcher.Constraint("Horizontal", 77),
    Sketcher.Constraint("Vertical", 78),
    Sketcher.Constraint("Horizontal", 79),
    Sketcher.Constraint("PointOnObject", 0, 2, -1),
    Sketcher.Constraint("PointOnObject", 4, 2, -1),
    Sketcher.Constraint("PointOnObject", 8, 2, -1),
    Sketcher.Constraint("PointOnObject", 12, 2, -1),
    Sketcher.Constraint("PointOnObject", 16, 2, -1),
    Sketcher.Constraint("PointOnObject", 20, 2, -1),
    Sketcher.Constraint("PointOnObject", 24, 2, -1),
    Sketcher.Constraint("PointOnObject", 28, 2, -1),
    Sketcher.Constraint("PointOnObject", 32, 2, -1),
    Sketcher.Constraint("PointOnObject", 36, 2, -1),
    Sketcher.Constraint("PointOnObject", 40, 2, -1),
    Sketcher.Constraint("PointOnObject", 44, 2, -1),
    Sketcher.Constraint("PointOnObject", 48, 2, -1),
    Sketcher.Constraint("PointOnObject", 52, 2, -1),
    Sketcher.Constraint("PointOnObject", 56, 2, -1),
    Sketcher.Constraint("PointOnObject", 60, 2, -1),
    Sketcher.Constraint("PointOnObject", 64, 2, -1),
    Sketcher.Constraint("PointOnObject", 68, 2, -1),
    Sketcher.Constraint("PointOnObject", 72, 2, -1),
    Sketcher.Constraint("PointOnObject", 76, 2, -1),
    Sketcher.Constraint("Horizontal", 3, 2, 6, 2),
    Sketcher.Constraint("Horizontal", 7, 2, 10, 2),
    Sketcher.Constraint("Horizontal", 11, 2, 14, 2),
    Sketcher.Constraint("Horizontal", 15, 2, 18, 2),
    Sketcher.Constraint("Horizontal", 19, 2, 22, 2),
    Sketcher.Constraint("Horizontal", 23, 2, 26, 2),
    Sketcher.Constraint("Horizontal", 27, 2, 30, 2),
    Sketcher.Constraint("Horizontal", 31, 2, 34, 2),
    Sketcher.Constraint("Horizontal", 35, 2, 38, 2),
    Sketcher.Constraint("Horizontal", 39, 2, 42, 2),
    Sketcher.Constraint("Horizontal", 43, 2, 46, 2),
    Sketcher.Constraint("Horizontal", 47, 2, 50, 2),
    Sketcher.Constraint("Horizontal", 51, 2, 54, 2),
    Sketcher.Constraint("Horizontal", 55, 2, 58, 2),
    Sketcher.Constraint("Horizontal", 59, 2, 62, 2),
    Sketcher.Constraint("Horizontal", 63, 2, 66, 2),
    Sketcher.Constraint("Horizontal", 67, 2, 70, 2),
    Sketcher.Constraint("Horizontal", 71, 2, 74, 2),
    Sketcher.Constraint("Horizontal", 75, 2, 78, 2),
    Sketcher.Constraint("Equal", 3, 5),
    Sketcher.Constraint("Equal", 7, 9),
    Sketcher.Constraint("Equal", 11, 13),
    Sketcher.Constraint("Equal", 15, 17),
    Sketcher.Constraint("Equal", 19, 21),
    Sketcher.Constraint("Equal", 23, 25),
    Sketcher.Constraint("Equal", 27, 29),
    Sketcher.Constraint("Equal", 31, 33),
    Sketcher.Constraint("Equal", 35, 37),
    Sketcher.Constraint("Equal", 39, 41),
    Sketcher.Constraint("Equal", 43, 45),
    Sketcher.Constraint("Equal", 47, 49),
    Sketcher.Constraint("Equal", 51, 53),
    Sketcher.Constraint("Equal", 55, 57),
    Sketcher.Constraint("Equal", 59, 61),
    Sketcher.Constraint("Equal", 63, 65),
    Sketcher.Constraint("Equal", 67, 69),
    Sketcher.Constraint("Equal", 71, 73),
    Sketcher.Constraint("Equal", 75, 77),
    Sketcher.Constraint("Equal", 79, 0),
    Sketcher.Constraint("DistanceX", 1, 1, 1, 2, Q("0.5 in")),
    Sketcher.Constraint("DistanceX", -1, 1, 1, 2, Q("1 in")),
    Sketcher.Constraint("DistanceX", -1, 1, 5, 2, Q("2 in")),
    Sketcher.Constraint("DistanceX", -1, 1, 9, 2, Q("3 in")),
    Sketcher.Constraint("DistanceX", -1, 1, 13, 2, Q("4 in")),
    Sketcher.Constraint("DistanceX", -1, 1, 17, 2, Q("5 in")),
    Sketcher.Constraint("DistanceX", -1, 1, 21, 2, Q("6 in")),
    Sketcher.Constraint("DistanceX", -1, 1, 25, 2, Q("7 in")),
    Sketcher.Constraint("DistanceX", -1, 1, 29, 2, Q("8 in")),
    Sketcher.Constraint("DistanceX", -1, 1, 33, 2, Q("9 in")),
    Sketcher.Constraint("DistanceX", -1, 1, 37, 2, Q("10 in")),
    Sketcher.Constraint("DistanceX", -1, 1, 41, 2, Q("11 in")),
    Sketcher.Constraint("DistanceX", -1, 1, 45, 2, Q("12 in")),
    Sketcher.Constraint("DistanceX", -1, 1, 49, 2, Q("13 in")),
    Sketcher.Constraint("DistanceX", -1, 1, 53, 2, Q("14 in")),
    Sketcher.Constraint("DistanceX", -1, 1, 57, 2, Q("15 in")),
    Sketcher.Constraint("DistanceX", -1, 1, 61, 2, Q("16 in")),
    Sketcher.Constraint("DistanceX", -1, 1, 65, 2, Q("17 in")),
    Sketcher.Constraint("DistanceX", -1, 1, 69, 2, Q("18 in")),
    Sketcher.Constraint("DistanceX", -1, 1, 73, 2, Q("19 in")),
    Sketcher.Constraint("DistanceX", -1, 1, 77, 2, Q("20 in")),
])
pocket3 = body.newObject("PartDesign::Pocket", "Pocket002")
pocket3.Profile = sketch4
pocket3.Length = Q("1 in")

doc.recompute()
